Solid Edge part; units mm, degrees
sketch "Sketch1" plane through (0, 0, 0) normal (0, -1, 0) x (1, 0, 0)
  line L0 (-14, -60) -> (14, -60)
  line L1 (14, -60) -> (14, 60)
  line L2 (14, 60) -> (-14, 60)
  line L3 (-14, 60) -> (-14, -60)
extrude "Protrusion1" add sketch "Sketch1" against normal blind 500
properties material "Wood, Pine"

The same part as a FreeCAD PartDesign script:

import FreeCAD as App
import Part
import Sketcher

V = App.Vector

doc = App.newDocument("Part")
body = doc.addObject("PartDesign::Body", "Body")

# Sketch on XZ plane
sketch1 = body.newObject("Sketcher::SketchObject", "Sketch")
sketch1.AttachmentSupport = (doc.getObject("XZ_Plane"), [""])
sketch1.MapMode = "FlatFace"
sketch1.addGeometry(Part.LineSegment(V(-14, 60, 0), V(-14, -60, 0)), False)
sketch1.addGeometry(Part.LineSegment(V(-14, -60, 0), V(14, -60, 0)), False)
sketch1.addGeometry(Part.LineSegment(V(14, -60, 0), V(14, 60, 0)), False)
sketch1.addGeometry(Part.LineSegment(V(14, 60, 0), V(-14, 60, 0)), False)
sketch1.addConstraint(Sketcher.Constraint("Coincident", 0, 2, 1, 1))
sketch1.addConstraint(Sketcher.Constraint("Coincident", 1, 2, 2, 1))
sketch1.addConstraint(Sketcher.Constraint("Coincident", 2, 2, 3, 1))
sketch1.addConstraint(Sketcher.Constraint("Coincident", 3, 2, 0, 1))
sketch1.addConstraint(Sketcher.Constraint("Vertical", 0))
sketch1.addConstraint(Sketcher.Constraint("Horizontal", 1))
sketch1.addConstraint(Sketcher.Constraint("Vertical", 2))
sketch1.addConstraint(Sketcher.Constraint("Horizontal", 3))
sketch1.addConstraint(Sketcher.Constraint("Symmetric", 0, 2, 2, 2, -1, 1))
sketch1.addConstraint(Sketcher.Constraint("DistanceX", 1, 1, 1, 2, 28.0))
sketch1.addConstraint(Sketcher.Constraint("DistanceY", 0, 2, 0, 1, 120.0))
pad1 = body.newObject("PartDesign::Pad", "Pad")
pad1.Profile = sketch1
pad1.Length = 500
pad1.Reversed = True

doc.recompute()
